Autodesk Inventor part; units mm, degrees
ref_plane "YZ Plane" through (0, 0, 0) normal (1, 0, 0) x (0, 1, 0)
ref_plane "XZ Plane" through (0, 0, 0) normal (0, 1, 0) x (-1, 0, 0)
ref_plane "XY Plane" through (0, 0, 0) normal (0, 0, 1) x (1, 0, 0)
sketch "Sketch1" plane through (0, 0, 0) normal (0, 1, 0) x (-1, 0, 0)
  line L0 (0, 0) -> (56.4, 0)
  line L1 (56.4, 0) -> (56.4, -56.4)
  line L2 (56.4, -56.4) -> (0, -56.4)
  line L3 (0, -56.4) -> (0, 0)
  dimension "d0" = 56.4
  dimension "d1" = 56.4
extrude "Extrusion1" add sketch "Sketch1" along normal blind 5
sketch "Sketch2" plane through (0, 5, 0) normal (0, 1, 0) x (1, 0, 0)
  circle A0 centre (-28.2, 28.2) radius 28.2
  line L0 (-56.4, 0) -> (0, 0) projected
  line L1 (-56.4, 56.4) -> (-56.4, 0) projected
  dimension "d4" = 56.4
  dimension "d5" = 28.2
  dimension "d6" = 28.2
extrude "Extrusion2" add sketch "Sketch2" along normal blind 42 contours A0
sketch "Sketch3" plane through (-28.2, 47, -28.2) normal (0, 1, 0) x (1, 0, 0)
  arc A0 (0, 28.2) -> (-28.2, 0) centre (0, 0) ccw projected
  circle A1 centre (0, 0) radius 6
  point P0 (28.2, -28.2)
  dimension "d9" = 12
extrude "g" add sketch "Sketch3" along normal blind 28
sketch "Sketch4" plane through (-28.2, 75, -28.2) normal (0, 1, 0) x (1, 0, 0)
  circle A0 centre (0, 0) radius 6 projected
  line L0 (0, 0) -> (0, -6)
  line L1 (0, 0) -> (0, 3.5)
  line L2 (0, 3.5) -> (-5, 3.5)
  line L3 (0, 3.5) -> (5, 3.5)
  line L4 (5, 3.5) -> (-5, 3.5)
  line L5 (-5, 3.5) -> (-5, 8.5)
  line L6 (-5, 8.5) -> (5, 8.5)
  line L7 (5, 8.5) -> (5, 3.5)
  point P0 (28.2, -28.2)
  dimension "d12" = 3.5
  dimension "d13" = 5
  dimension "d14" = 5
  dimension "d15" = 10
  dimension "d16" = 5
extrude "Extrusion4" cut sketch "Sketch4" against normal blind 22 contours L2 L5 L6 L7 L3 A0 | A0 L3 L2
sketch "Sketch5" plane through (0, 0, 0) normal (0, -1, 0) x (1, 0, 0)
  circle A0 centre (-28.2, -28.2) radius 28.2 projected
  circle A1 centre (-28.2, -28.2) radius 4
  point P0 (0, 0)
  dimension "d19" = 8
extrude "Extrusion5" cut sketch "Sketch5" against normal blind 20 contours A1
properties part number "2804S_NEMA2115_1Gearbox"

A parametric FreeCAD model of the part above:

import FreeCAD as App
import Part
import Sketcher


def add_polygon(sketch, points):
    """Adds a closed chain of lines whose ends are joined by coincident constraints."""
    first, n = sketch.GeometryCount, len(points)
    for a, b in zip(points, points[1:] + points[:1]):
        sketch.addGeometry(Part.LineSegment(App.Vector(*a, 0), App.Vector(*b, 0)), False)
    for i in range(n):
        sketch.addConstraint(Sketcher.Constraint("Coincident", first + i, 2, first + (i + 1) % n, 1))

doc = App.newDocument("Part")
body = doc.addObject("PartDesign::Body", "Body")

sketch1 = body.newObject("Sketcher::SketchObject", "Sketch")
sketch1.AttachmentSupport = (doc.getObject("XZ_Plane"), [""])
sketch1.MapMode = "FlatFace"
add_polygon(sketch1, [(-56, 0), (0, 0), (0, -56), (-56, -56)])
sketch1.addConstraint([
    Sketcher.Constraint("Horizontal", 0),
    Sketcher.Constraint("Vertical", 1),
    Sketcher.Constraint("Horizontal", 2),
    Sketcher.Constraint("Vertical", 3),
    Sketcher.Constraint("Coincident", 0, 2, -1, 1),
    Sketcher.Constraint("Equal", 2, 1),
    Sketcher.Constraint("DistanceX", 0, 1, 0, 2, 56.4),
])
pad1 = body.newObject("PartDesign::Pad", "Pad")
pad1.Profile = sketch1
pad1.Length = 5
pad1.Reversed = True

sketch2 = body.newObject("Sketcher::SketchObject", "Sketch001")
sketch2.AttachmentSupport = (doc.getObject("XZ_Plane"), [""])
sketch2.MapMode = "FlatFace"
sketch2.AttachmentOffset = App.Placement(App.Vector(0, 0, -5), App.Rotation())
sketch2.addGeometry(Part.Circle(App.Vector(-28, -28, 0), App.Vector(0, 0, 1), 28), False)
sketch2.addConstraint([
    Sketcher.Constraint("Diameter", 0, 56.4),
    Sketcher.Constraint("DistanceX", 0, 3, -1, 1, 28.2),
    Sketcher.Constraint("DistanceY", 0, 3, -1, 1, 28.2),
])
pad2 = body.newObject("PartDesign::Pad", "Pad001")
pad2.Profile = sketch2
pad2.Length = 42
pad2.Reversed = True

sketch3 = body.newObject("Sketcher::SketchObject", "Sketch002")
sketch3.AttachmentSupport = (doc.getObject("XZ_Plane"), [""])
sketch3.MapMode = "FlatFace"
sketch3.AttachmentOffset = App.Placement(App.Vector(0, 0, -47), App.Rotation())
sketch3.addGeometry(Part.Circle(App.Vector(-28, -28, 0), App.Vector(0, 0, 1), 6), False)
sketch3.addConstraint([
    Sketcher.Constraint("Diameter", 0, 12.0),
    Sketcher.Constraint("DistanceX", 0, 3, -1, 1, 28.2),
    Sketcher.Constraint("DistanceY", 0, 3, -1, 1, 28.2),
])
pad3 = body.newObject("PartDesign::Pad", "Pad002")
pad3.Profile = sketch3
pad3.Length = 28
pad3.Reversed = True

sketch4 = body.newObject("Sketcher::SketchObject", "Sketch003")
sketch4.AttachmentSupport = (doc.getObject("XZ_Plane"), [""])
sketch4.MapMode = "FlatFace"
sketch4.AttachmentOffset = App.Placement(App.Vector(0, 0, -75), App.Rotation())
add_polygon(sketch4, [(-33, -32), (-23, -32), (-23, -37), (-33, -37)])
sketch4.addConstraint([
    Sketcher.Constraint("Horizontal", 0),
    Sketcher.Constraint("Vertical", 1),
    Sketcher.Constraint("Horizontal", 2),
    Sketcher.Constraint("Vertical", 3),
    Sketcher.Constraint("DistanceX", 0, 1, 0, 2, 10.0),
    Sketcher.Constraint("DistanceY", 1, 2, 1, 1, 5.0),
    Sketcher.Constraint("DistanceX", 0, 2, -1, 1, 23.2),
    Sketcher.Constraint("DistanceY", 0, 2, -1, 1, 31.7),
])
pocket1 = body.newObject("PartDesign::Pocket", "Pocket")
pocket1.Profile = sketch4
pocket1.Length = 22
pocket1.Reversed = True

sketch5 = body.newObject("Sketcher::SketchObject", "Sketch004")
sketch5.AttachmentSupport = (doc.getObject("XZ_Plane"), [""])
sketch5.MapMode = "FlatFace"
sketch5.addGeometry(Part.Circle(App.Vector(-28.2, -28.2, 0), App.Vector(0, 0, 1), 4), False)
sketch5.addConstraint([
    Sketcher.Constraint("Diameter", 0, 8.0),
    Sketcher.Constraint("DistanceX", 0, 3, -1, 1, 28.2),
    Sketcher.Constraint("DistanceY", 0, 3, -1, 1, 28.2),
])
pocket2 = body.newObject("PartDesign::Pocket", "Pocket001")
pocket2.Profile = sketch5
pocket2.Length = 20

doc.recompute()
